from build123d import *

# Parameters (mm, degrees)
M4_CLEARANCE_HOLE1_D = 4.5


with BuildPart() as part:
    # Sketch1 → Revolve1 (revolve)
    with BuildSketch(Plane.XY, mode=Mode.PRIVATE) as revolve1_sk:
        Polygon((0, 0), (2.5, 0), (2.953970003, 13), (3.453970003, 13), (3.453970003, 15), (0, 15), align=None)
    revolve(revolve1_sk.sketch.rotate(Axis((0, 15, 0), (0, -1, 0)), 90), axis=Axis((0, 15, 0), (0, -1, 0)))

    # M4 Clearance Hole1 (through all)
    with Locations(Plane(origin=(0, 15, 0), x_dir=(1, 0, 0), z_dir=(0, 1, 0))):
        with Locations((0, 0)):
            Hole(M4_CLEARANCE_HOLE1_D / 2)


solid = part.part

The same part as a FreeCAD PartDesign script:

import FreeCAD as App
import Part
import Sketcher

V = App.Vector
Q = App.Units.Quantity

doc = App.newDocument("Part")
body = doc.addObject("PartDesign::Body", "Body")

# Sketch on XY plane
sketch1 = body.newObject("Sketcher::SketchObject", "Sketch")
sketch1.AttachmentSupport = (doc.getObject("XY_Plane"), [""])
sketch1.MapMode = "FlatFace"
sketch1.addGeometry([
    Part.LineSegment(V(0, 0, 0), V(2.5, 0, 0)),  # 0
    Part.LineSegment(V(2.5, 0, 0), V(3, 13, 0)),  # 1
    Part.LineSegment(V(3, 13, 0), V(3.5, 13, 0)),  # 2
    Part.LineSegment(V(3.5, 13, 0), V(3.5, 15, 0)),  # 3
    Part.LineSegment(V(3.5, 15, 0), V(0, 15, 0)),  # 4
    Part.LineSegment(V(0, 15, 0), V(0, 0, 0)),  # 5
], False)
sketch1.addConstraint([
    Sketcher.Constraint("Coincident", 0, 2, 1, 1),
    Sketcher.Constraint("Coincident", 1, 2, 2, 1),
    Sketcher.Constraint("Coincident", 2, 2, 3, 1),
    Sketcher.Constraint("Coincident", 3, 2, 4, 1),
    Sketcher.Constraint("Coincident", 4, 2, 5, 1),
    Sketcher.Constraint("Coincident", 5, 2, 0, 1),
    Sketcher.Constraint("Horizontal", 0),
    Sketcher.Constraint("Horizontal", 2),
    Sketcher.Constraint("Vertical", 3),
    Sketcher.Constraint("Horizontal", 4),
    Sketcher.Constraint("Vertical", 5),
    Sketcher.Constraint("Coincident", 5, 2, -1, 1),
    Sketcher.Constraint("DistanceY", 3, 1, 3, 2, Q("2 mm")),
    Sketcher.Constraint("DistanceY", 5, 2, 5, 1, Q("15 mm")),
    Sketcher.Constraint("Angle", 1, Q("88 deg")),
    Sketcher.Constraint("DistanceX", 0, 1, 0, 2, Q("2.5 mm")),
    Sketcher.Constraint("DistanceX", 2, 1, 2, 2, Q("0.5 mm")),
])
revolution = body.newObject("PartDesign::Revolution", "Revolution")
revolution.Profile = sketch1
revolution.ReferenceAxis = (sketch1, ["V_Axis"])
revolution.Angle = 360

# Sketch on XZ plane
sketch2 = body.newObject("Sketcher::SketchObject", "Sketch001")
sketch2.AttachmentSupport = (doc.getObject("XZ_Plane"), [""])
sketch2.MapMode = "FlatFace"
sketch2.AttachmentOffset = App.Placement(V(0, 0, -15), App.Rotation())
sketch2.addGeometry(Part.Circle(V(0, 0, 0), V(0, 0, 1), 2.2), False)
sketch2.addConstraint([
    Sketcher.Constraint("Coincident", 0, 3, -1, 1),
    Sketcher.Constraint("Diameter", 0, Q("4.5 mm")),
])
doc.recompute()
hole = body.newObject("PartDesign::Hole", "Hole")
hole.Profile = sketch2
hole.ThreadType = "None"
hole.Diameter = 4.5
hole.DepthType = "ThroughAll"
hole.Reversed = True

doc.recompute()
